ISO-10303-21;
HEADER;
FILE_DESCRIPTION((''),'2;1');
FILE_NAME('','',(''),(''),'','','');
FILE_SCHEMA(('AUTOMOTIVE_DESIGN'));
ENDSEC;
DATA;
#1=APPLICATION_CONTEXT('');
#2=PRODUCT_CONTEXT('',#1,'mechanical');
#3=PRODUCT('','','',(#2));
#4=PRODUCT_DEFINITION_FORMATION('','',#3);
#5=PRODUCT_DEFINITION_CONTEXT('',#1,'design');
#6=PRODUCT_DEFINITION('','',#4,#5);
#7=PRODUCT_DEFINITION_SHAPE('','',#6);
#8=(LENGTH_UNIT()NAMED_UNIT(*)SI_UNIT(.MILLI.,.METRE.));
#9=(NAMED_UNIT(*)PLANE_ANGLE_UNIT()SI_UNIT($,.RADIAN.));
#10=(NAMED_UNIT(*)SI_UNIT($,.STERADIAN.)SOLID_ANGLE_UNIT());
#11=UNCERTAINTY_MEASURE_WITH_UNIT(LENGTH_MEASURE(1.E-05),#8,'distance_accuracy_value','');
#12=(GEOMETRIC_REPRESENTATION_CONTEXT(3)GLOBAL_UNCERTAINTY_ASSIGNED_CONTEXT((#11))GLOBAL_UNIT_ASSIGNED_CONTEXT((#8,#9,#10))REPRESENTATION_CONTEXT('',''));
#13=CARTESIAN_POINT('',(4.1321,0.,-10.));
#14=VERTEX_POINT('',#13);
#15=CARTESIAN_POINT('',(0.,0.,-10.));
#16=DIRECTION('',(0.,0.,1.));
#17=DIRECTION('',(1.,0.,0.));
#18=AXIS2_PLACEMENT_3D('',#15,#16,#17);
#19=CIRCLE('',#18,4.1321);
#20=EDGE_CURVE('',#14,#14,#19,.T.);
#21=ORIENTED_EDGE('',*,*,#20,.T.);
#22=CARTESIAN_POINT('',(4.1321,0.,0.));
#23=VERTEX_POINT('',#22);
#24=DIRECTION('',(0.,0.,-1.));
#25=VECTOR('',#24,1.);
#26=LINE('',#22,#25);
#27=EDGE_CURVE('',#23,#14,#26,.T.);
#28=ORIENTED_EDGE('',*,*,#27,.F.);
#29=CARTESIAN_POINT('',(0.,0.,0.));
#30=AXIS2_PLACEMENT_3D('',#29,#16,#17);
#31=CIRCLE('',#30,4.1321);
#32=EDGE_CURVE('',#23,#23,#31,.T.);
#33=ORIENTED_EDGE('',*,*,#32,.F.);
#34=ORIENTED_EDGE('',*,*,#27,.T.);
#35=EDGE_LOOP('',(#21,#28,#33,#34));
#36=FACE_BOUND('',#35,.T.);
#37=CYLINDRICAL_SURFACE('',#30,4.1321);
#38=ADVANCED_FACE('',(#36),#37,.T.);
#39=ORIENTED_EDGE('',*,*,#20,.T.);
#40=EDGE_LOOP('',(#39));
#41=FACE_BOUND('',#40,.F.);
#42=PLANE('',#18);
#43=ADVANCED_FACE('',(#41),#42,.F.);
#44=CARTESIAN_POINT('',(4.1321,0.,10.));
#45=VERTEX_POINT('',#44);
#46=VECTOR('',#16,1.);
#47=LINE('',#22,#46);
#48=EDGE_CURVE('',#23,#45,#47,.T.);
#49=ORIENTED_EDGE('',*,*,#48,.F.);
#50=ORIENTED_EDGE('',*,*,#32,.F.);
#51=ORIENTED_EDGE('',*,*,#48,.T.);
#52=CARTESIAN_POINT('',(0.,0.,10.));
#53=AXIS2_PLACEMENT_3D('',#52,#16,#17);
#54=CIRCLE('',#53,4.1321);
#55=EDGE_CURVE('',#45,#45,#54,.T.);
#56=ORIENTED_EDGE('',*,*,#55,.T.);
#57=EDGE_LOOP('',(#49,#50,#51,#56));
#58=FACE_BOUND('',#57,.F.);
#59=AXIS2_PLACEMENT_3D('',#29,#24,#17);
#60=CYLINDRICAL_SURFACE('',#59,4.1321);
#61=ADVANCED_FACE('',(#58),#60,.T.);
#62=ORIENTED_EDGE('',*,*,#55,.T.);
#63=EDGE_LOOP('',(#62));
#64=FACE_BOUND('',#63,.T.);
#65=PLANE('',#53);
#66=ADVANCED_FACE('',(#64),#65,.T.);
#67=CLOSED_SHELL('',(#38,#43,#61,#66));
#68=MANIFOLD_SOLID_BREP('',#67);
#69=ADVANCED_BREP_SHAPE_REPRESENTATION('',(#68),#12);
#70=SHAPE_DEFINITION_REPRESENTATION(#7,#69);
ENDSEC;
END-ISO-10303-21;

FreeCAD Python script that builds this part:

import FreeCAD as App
import Part
import Sketcher

V = App.Vector

doc = App.newDocument("Part")
body = doc.addObject("PartDesign::Body", "Body")

# Sketch on XY plane
sketch1 = body.newObject("Sketcher::SketchObject", "Sketch")
sketch1.AttachmentSupport = (doc.getObject("XY_Plane"), [""])
sketch1.MapMode = "FlatFace"
sketch1.addGeometry(Part.Circle(V(0, 0, 0), V(0, 0, 1), 4.1), False)
sketch1.addConstraint(Sketcher.Constraint("Coincident", 0, 3, -1, 1))
sketch1.addConstraint(Sketcher.Constraint("Diameter", 0, 8.2642))
pad1 = body.newObject("PartDesign::Pad", "Pad")
pad1.Profile = sketch1
pad1.Length = 20
pad1.Midplane = True

doc.recompute()
